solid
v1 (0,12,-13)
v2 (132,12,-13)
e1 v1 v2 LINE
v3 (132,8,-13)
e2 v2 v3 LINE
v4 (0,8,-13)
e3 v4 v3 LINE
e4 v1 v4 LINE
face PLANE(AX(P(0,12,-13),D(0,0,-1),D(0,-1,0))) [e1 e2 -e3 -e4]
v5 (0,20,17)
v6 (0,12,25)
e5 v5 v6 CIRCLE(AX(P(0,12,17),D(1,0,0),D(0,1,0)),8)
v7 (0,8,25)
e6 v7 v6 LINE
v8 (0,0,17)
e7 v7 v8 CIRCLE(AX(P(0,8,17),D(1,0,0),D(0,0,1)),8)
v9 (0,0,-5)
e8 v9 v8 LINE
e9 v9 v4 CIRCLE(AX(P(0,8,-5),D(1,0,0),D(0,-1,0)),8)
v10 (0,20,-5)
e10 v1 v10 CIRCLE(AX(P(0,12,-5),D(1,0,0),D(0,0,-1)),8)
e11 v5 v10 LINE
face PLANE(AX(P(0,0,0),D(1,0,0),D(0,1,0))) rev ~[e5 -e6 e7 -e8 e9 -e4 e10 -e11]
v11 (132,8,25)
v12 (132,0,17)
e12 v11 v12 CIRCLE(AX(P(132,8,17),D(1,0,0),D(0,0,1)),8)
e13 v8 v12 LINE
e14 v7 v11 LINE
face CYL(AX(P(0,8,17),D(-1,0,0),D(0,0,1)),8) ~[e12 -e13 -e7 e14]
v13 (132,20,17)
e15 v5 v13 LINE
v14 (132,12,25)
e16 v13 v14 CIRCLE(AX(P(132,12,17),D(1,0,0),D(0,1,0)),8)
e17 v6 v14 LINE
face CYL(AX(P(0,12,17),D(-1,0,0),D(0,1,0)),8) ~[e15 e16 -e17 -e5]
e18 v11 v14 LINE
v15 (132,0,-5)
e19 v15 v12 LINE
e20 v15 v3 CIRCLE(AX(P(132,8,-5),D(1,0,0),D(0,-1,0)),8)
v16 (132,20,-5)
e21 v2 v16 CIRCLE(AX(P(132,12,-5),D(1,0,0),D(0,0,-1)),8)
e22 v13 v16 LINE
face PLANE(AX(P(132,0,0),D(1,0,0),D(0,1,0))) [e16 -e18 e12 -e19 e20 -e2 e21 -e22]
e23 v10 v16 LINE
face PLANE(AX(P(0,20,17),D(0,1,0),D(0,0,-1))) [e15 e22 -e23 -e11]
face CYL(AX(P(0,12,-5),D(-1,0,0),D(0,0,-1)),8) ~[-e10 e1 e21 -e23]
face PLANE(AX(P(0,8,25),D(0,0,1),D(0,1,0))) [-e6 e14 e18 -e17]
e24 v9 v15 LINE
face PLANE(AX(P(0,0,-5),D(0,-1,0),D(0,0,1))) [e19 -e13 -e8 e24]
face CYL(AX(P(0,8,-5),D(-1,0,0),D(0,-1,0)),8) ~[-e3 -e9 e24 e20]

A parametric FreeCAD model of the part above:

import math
import FreeCAD as App
import Part
import Sketcher

V = App.Vector

doc = App.newDocument("Part")
body = doc.addObject("PartDesign::Body", "Body")

# Sketch on YZ plane
sketch1 = body.newObject("Sketcher::SketchObject", "Sketch")
sketch1.AttachmentSupport = (doc.getObject("YZ_Plane"), [""])
sketch1.MapMode = "FlatFace"
sketch1.addGeometry([
    Part.LineSegment(V(12, 25, 0), V(8, 25, 0)),  # 0
    Part.ArcOfCircle(Part.Circle(V(8, 17, 0), V(0, 0, 1), 8), math.radians(90), math.radians(180)),  # 1
    Part.LineSegment(V(0, 17, 0), V(0, -5, 0)),  # 2
    Part.ArcOfCircle(Part.Circle(V(8, -5, 0), V(0, 0, 1), 8), math.radians(180), math.radians(270)),  # 3
    Part.LineSegment(V(8, -13, 0), V(12, -13, 0)),  # 4
    Part.ArcOfCircle(Part.Circle(V(12, -5, 0), V(0, 0, 1), 8), math.radians(-90), math.radians(0)),  # 5
    Part.LineSegment(V(20, -5, 0), V(20, 17, 0)),  # 6
    Part.ArcOfCircle(Part.Circle(V(12, 17, 0), V(0, 0, 1), 8), math.radians(0), math.radians(90)),  # 7
], False)
sketch1.addConstraint([
    Sketcher.Constraint("Tangent", 0, 2, 1, 1),
    Sketcher.Constraint("Tangent", 1, 2, 2, 1),
    Sketcher.Constraint("Tangent", 2, 2, 3, 1),
    Sketcher.Constraint("Tangent", 3, 2, 4, 1),
    Sketcher.Constraint("Tangent", 4, 2, 5, 1),
    Sketcher.Constraint("Tangent", 5, 2, 6, 1),
    Sketcher.Constraint("Tangent", 6, 2, 7, 1),
    Sketcher.Constraint("Tangent", 7, 2, 0, 1),
    Sketcher.Constraint("Horizontal", 0),
    Sketcher.Constraint("Vertical", 2),
    Sketcher.Constraint("Horizontal", 4),
    Sketcher.Constraint("Vertical", 6),
    Sketcher.Constraint("Equal", 1, 3),
    Sketcher.Constraint("Equal", 3, 5),
    Sketcher.Constraint("Equal", 5, 7),
    Sketcher.Constraint("PointOnObject", 1, 2, -2),
    Sketcher.Constraint("Radius", 1, 8.0),
    Sketcher.Constraint("DistanceX", -1, 1, 5, 2, 20.0),
    Sketcher.Constraint("DistanceY", 2, 2, 2, 1, 22.0),
    Sketcher.Constraint("DistanceY", -1, 1, 1, 3, 17.0),
])
pad1 = body.newObject("PartDesign::Pad", "Pad")
pad1.Profile = sketch1
pad1.Length = 132

doc.recompute()
